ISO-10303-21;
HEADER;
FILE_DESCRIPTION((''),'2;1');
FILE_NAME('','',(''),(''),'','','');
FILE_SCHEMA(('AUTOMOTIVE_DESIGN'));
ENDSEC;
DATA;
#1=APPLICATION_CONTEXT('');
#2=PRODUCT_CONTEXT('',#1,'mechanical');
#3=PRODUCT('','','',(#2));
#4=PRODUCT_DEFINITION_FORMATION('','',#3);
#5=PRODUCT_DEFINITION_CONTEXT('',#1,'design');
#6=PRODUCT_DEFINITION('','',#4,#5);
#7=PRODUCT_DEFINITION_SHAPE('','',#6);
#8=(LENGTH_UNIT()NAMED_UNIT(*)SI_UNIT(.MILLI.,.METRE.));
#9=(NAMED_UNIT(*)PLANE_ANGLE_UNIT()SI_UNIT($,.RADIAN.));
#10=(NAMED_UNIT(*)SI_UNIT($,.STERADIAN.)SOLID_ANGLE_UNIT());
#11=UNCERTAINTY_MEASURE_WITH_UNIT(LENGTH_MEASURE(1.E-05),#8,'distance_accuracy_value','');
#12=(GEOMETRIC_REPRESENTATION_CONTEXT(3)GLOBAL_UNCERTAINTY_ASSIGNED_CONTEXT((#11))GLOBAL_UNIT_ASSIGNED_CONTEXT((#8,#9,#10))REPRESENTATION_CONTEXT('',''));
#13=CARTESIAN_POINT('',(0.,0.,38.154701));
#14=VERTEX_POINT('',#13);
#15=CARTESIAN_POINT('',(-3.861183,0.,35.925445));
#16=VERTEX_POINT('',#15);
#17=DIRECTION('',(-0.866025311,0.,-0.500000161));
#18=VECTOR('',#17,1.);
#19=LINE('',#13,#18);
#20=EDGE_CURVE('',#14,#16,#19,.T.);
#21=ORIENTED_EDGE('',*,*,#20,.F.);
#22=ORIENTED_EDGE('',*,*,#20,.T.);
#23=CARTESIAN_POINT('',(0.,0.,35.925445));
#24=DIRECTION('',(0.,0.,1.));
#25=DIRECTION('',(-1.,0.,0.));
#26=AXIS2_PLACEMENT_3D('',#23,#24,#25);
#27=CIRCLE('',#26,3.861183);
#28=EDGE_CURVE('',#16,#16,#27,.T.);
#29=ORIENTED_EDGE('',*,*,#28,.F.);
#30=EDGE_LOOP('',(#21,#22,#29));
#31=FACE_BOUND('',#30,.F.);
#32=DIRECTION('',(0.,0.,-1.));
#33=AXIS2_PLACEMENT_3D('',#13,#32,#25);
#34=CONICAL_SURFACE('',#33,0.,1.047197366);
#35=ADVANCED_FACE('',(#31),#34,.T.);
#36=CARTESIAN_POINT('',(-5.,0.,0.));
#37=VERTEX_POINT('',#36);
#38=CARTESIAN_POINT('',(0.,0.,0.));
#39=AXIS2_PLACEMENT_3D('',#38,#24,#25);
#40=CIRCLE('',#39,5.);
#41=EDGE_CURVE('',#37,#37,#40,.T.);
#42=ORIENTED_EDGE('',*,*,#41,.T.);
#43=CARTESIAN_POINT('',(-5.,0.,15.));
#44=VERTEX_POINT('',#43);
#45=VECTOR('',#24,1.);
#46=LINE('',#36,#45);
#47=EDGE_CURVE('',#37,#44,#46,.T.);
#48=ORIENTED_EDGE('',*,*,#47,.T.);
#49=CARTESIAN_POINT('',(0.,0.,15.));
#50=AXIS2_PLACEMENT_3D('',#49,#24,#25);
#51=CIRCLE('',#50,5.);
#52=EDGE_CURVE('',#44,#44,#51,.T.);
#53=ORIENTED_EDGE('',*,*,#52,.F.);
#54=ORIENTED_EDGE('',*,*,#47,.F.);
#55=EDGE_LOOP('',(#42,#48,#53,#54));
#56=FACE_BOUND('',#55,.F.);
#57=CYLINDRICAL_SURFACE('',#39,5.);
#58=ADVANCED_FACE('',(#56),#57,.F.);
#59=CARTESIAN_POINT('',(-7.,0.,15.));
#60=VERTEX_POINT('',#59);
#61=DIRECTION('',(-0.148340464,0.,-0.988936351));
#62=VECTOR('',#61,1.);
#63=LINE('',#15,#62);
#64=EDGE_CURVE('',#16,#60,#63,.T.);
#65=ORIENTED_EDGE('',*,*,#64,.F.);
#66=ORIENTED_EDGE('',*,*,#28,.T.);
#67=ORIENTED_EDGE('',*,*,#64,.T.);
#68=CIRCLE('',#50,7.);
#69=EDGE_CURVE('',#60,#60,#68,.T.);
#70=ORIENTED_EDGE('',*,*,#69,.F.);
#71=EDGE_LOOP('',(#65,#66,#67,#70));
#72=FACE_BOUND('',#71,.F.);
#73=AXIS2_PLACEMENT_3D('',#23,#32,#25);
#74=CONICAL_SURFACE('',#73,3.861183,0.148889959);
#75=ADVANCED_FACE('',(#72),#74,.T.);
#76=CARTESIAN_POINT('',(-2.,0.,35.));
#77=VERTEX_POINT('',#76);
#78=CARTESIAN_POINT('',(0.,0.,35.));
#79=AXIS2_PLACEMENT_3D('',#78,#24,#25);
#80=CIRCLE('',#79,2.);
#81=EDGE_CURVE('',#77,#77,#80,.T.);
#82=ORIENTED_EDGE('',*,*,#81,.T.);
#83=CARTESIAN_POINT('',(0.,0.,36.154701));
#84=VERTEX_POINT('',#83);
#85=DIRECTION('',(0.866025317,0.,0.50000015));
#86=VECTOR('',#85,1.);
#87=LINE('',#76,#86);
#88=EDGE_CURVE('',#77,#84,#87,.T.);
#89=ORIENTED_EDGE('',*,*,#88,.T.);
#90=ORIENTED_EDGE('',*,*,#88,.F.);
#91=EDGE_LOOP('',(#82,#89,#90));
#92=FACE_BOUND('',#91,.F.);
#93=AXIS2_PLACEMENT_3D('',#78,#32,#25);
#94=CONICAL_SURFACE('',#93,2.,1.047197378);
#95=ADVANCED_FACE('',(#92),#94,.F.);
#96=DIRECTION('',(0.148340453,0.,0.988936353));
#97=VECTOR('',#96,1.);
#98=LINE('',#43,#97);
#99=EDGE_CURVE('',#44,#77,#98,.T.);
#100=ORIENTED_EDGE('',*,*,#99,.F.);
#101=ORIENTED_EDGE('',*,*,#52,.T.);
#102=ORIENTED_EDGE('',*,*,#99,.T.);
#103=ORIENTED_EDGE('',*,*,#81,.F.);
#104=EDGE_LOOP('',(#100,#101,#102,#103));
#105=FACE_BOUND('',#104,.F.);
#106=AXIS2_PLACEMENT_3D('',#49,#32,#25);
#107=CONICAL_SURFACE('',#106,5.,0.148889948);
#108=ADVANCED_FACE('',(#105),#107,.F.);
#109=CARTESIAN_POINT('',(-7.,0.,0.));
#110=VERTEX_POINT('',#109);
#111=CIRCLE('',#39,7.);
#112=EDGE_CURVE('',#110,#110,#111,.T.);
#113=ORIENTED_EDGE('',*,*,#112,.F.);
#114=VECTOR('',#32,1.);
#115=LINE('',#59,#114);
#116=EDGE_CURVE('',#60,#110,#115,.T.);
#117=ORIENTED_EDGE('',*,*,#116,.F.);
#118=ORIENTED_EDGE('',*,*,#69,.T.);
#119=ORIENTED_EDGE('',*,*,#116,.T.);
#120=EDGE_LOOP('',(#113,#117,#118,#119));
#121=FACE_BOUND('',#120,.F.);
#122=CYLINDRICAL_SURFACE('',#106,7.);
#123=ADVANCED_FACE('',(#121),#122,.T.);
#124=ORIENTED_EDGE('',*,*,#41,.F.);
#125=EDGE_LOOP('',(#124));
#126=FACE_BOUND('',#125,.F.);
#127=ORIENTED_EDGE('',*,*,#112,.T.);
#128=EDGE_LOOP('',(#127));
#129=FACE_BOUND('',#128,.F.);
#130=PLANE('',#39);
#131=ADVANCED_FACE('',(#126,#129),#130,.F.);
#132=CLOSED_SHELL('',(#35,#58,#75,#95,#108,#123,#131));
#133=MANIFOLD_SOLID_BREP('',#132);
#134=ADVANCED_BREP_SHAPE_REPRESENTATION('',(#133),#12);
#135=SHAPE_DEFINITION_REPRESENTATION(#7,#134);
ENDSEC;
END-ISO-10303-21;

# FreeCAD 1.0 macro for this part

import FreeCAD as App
import Part
import Sketcher
from FreeCAD import Vector
Q = App.Units.Quantity

doc = App.newDocument("Part")
params = doc.addObject("Spreadsheet::Sheet", "Params")
for row, (alias, value) in enumerate([
    ("sketch1_width", "2 mm"),
    ("sketch1_height", "15 mm"),
    ("revolution_angle", "360 deg"),
], start=1):
    params.set(f"A{row}", alias)
    params.set(f"B{row}", "=" + value)
    params.setAlias(f"B{row}", alias)

body = doc.addObject("PartDesign::Body", "Body")

sketch1 = body.newObject("Sketcher::SketchObject", "Sketch")
sketch1.AttachmentSupport = (doc.getObject("XZ_Plane"), [""])
sketch1.MapMode = "FlatFace"
sketch1.addGeometry(Part.LineSegment(Vector(-3.9, 35.9, 0), Vector(-7, 15, 0)), False)
sketch1.addGeometry(Part.LineSegment(Vector(-7, 15, 0), Vector(-7, 0, 0)), False)
sketch1.addGeometry(Part.LineSegment(Vector(-7, 0, 0), Vector(-5, 0, 0)), False)
sketch1.addGeometry(Part.LineSegment(Vector(-5, 0, 0), Vector(-5, 15, 0)), False)
sketch1.addGeometry(Part.LineSegment(Vector(-5, 15, 0), Vector(-2, 35, 0)), False)
sketch1.addGeometry(Part.LineSegment(Vector(-2, 35, 0), Vector(0, 36.2, 0)), False)
sketch1.addGeometry(Part.LineSegment(Vector(0, 36.2, 0), Vector(0, 38.2, 0)), False)
sketch1.addGeometry(Part.LineSegment(Vector(0, 38.2, 0), Vector(-3.9, 35.9, 0)), False)
sketch1.addConstraint(Sketcher.Constraint("Coincident", 0, 2, 1, 1))
sketch1.addConstraint(Sketcher.Constraint("Coincident", 1, 2, 2, 1))
sketch1.addConstraint(Sketcher.Constraint("Coincident", 2, 2, 3, 1))
sketch1.addConstraint(Sketcher.Constraint("Coincident", 3, 2, 4, 1))
sketch1.addConstraint(Sketcher.Constraint("Coincident", 4, 2, 5, 1))
sketch1.addConstraint(Sketcher.Constraint("Coincident", 5, 2, 6, 1))
sketch1.addConstraint(Sketcher.Constraint("Coincident", 6, 2, 7, 1))
sketch1.addConstraint(Sketcher.Constraint("Coincident", 7, 2, 0, 1))
sketch1.addConstraint(Sketcher.Constraint("Vertical", 1))
sketch1.addConstraint(Sketcher.Constraint("Horizontal", 2))
sketch1.addConstraint(Sketcher.Constraint("Vertical", 3))
sketch1.addConstraint(Sketcher.Constraint("Vertical", 6))
sketch1.addConstraint(Sketcher.Constraint("PointOnObject", 1, 2, -1))
sketch1.addConstraint(Sketcher.Constraint("PointOnObject", 5, 2, -2))
sketch1.addConstraint(Sketcher.Constraint("Parallel", 0, 4))
sketch1.addConstraint(Sketcher.Constraint("Parallel", 5, 7))
sketch1.addConstraint(Sketcher.Constraint("Horizontal", 0, 2, 3, 2))
sketch1.addConstraint(Sketcher.Constraint("Equal", 2, 6))
sketch1.addConstraint(Sketcher.Constraint("DistanceX", 2, 1, 2, 2, Q("2 mm")))
sketch1.addConstraint(Sketcher.Constraint("DistanceY", 1, 2, 1, 1, Q("15 mm")))
sketch1.addConstraint(Sketcher.Constraint("Angle", 5, Q("30.00001 deg")))
sketch1.addConstraint(Sketcher.Constraint("DistanceX", 0, 2, -1, 1, Q("7 mm")))
sketch1.addConstraint(Sketcher.Constraint("DistanceX", 4, 2, -1, 1, Q("2 mm")))
sketch1.addConstraint(Sketcher.Constraint("DistanceY", -1, 1, 4, 2, Q("35 mm")))
sketch1.setExpression("Constraints[18]", "Params.sketch1_width")
sketch1.setExpression("Constraints[19]", "Params.sketch1_height")
revolution = body.newObject("PartDesign::Revolution", "Revolution")
revolution.Profile = sketch1
revolution.ReferenceAxis = (sketch1, ["V_Axis"])
revolution.setExpression("Angle", "Params.revolution_angle")

doc.recompute()
